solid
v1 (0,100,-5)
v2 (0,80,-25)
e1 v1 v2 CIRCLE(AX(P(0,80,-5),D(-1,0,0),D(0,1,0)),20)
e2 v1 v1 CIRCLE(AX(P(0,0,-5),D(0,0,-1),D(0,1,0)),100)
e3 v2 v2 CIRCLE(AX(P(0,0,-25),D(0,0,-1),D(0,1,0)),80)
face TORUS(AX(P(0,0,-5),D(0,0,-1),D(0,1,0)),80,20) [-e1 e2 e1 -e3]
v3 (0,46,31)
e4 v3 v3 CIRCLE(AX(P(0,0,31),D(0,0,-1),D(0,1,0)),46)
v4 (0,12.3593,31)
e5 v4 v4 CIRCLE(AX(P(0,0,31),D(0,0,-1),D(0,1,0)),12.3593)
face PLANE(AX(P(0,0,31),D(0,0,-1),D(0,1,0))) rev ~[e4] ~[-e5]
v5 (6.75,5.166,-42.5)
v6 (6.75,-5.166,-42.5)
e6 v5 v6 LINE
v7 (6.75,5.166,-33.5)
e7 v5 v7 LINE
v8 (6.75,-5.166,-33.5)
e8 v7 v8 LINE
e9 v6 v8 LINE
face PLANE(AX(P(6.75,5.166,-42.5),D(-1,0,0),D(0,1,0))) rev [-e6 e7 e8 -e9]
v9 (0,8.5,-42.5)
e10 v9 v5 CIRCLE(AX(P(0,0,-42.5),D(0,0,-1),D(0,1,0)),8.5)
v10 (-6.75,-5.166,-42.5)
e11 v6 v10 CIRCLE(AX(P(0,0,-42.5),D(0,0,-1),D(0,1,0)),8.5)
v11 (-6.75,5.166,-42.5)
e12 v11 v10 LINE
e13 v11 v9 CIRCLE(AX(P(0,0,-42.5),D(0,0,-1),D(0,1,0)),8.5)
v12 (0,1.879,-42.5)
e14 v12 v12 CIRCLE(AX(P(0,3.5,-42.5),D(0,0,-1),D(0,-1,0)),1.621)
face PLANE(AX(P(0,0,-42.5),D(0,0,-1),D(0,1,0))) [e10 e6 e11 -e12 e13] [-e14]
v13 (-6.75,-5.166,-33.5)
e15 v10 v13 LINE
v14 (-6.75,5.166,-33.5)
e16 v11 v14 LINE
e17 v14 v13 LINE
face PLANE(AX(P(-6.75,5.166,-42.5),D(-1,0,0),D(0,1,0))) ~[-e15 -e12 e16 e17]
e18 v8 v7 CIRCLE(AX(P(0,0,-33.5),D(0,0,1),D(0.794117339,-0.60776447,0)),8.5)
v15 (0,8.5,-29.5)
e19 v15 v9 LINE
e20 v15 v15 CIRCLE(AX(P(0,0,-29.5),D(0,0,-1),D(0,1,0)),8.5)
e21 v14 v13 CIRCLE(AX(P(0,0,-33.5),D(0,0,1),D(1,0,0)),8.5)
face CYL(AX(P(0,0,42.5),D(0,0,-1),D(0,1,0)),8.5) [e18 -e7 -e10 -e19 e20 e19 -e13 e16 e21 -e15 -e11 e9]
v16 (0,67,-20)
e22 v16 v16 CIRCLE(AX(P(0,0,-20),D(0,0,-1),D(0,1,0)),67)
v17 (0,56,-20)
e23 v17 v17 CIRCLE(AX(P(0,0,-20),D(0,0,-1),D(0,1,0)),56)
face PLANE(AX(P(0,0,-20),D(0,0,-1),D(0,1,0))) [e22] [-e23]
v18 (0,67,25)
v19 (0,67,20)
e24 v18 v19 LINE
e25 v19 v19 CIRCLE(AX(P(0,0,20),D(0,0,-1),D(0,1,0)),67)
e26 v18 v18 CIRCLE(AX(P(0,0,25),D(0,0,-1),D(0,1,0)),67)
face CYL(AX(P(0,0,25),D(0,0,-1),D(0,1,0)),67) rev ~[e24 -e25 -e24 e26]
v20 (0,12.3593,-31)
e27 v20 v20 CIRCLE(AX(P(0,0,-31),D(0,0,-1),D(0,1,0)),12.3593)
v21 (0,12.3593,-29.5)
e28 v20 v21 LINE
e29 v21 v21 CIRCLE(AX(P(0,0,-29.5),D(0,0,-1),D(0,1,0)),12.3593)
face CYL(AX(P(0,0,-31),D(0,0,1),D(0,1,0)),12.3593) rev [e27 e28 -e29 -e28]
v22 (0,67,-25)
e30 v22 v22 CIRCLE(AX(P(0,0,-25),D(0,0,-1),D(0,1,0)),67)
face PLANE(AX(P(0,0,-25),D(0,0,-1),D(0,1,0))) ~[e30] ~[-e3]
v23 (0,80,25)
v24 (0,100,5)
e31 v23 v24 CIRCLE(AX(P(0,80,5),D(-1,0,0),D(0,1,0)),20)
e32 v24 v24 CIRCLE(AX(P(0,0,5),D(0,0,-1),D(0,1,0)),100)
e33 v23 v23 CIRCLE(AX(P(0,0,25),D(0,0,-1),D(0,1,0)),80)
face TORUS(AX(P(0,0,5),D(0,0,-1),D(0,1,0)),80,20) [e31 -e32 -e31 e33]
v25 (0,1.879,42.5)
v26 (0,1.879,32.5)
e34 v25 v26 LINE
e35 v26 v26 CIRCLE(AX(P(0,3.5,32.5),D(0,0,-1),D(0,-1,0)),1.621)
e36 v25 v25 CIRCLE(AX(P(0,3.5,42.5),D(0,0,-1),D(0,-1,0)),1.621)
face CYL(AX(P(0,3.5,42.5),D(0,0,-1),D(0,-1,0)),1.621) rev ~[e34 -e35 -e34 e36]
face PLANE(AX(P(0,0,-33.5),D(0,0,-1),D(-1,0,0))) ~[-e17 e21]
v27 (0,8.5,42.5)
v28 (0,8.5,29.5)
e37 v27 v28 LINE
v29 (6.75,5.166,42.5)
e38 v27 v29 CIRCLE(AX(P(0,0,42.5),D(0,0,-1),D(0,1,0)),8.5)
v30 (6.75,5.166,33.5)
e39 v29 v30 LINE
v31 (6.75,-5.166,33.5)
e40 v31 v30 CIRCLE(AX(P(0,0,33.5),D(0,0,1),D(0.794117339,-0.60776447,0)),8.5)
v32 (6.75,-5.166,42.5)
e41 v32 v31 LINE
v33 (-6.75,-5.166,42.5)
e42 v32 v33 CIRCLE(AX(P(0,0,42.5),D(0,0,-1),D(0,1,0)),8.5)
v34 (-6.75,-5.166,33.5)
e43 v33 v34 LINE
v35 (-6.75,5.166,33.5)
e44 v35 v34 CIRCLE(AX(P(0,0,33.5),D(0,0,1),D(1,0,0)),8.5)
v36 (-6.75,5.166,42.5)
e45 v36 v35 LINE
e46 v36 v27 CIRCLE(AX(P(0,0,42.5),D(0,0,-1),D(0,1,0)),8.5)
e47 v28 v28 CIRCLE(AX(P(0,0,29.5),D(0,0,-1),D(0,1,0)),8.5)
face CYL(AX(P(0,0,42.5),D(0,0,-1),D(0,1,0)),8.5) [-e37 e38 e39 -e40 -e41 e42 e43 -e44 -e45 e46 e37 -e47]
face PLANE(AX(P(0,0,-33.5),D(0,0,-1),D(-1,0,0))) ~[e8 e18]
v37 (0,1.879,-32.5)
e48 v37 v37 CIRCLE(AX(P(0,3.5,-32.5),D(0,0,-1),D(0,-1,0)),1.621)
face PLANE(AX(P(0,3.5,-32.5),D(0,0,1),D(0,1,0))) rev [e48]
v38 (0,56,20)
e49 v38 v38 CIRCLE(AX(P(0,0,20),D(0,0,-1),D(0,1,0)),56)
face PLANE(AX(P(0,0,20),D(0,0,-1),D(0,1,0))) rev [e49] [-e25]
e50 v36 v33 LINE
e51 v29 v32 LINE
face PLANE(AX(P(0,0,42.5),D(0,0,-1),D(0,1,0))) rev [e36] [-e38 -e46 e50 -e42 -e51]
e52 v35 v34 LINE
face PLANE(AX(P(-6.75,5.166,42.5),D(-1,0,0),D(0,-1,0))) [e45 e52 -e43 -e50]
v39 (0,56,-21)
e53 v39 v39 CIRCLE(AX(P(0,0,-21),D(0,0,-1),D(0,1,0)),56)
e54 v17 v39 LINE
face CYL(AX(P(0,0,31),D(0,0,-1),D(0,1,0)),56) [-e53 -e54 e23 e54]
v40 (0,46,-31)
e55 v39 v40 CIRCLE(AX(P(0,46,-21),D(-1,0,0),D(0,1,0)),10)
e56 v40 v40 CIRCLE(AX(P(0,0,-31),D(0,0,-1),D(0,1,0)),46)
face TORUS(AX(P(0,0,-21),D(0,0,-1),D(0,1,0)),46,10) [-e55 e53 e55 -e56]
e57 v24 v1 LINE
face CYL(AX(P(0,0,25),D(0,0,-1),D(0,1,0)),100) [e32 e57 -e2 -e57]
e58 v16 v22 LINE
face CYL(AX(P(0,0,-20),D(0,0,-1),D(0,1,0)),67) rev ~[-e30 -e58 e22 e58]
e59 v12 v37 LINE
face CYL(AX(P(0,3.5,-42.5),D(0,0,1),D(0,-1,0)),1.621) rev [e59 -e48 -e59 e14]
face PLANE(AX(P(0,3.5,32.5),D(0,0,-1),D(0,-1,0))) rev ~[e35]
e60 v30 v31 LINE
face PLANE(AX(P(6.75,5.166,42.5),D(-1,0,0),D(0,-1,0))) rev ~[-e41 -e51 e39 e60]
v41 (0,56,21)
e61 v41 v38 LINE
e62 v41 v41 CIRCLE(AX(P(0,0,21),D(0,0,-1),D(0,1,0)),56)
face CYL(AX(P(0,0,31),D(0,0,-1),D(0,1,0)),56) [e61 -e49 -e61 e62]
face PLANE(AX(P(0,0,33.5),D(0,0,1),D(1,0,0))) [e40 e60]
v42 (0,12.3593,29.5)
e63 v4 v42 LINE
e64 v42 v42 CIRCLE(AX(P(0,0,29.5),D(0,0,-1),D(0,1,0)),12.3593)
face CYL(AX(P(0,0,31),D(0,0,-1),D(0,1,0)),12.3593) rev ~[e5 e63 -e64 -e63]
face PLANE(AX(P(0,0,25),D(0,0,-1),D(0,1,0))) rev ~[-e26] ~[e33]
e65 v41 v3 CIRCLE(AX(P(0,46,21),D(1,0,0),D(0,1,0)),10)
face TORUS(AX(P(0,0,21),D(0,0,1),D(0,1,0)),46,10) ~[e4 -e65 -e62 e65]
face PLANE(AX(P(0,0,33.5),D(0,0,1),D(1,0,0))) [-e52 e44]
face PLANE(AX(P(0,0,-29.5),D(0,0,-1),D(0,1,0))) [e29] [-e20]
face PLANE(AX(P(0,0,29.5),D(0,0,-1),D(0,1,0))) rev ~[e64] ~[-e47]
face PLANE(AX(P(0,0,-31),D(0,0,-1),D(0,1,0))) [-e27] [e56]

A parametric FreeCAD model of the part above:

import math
import FreeCAD as App
import Part
import Sketcher

V = App.Vector


def edges_at(feature, points):
    """Names of the edges that pass closest to the given points."""
    edges = feature.Shape.Edges
    near = lambda p: min(range(len(edges)), key=lambda i: edges[i].distToShape(Part.Vertex(*p))[0])
    return sorted({f"Edge{near(p) + 1}" for p in points})


def add_polygon(sketch, points):
    """Adds a closed chain of lines whose ends are joined by coincident constraints."""
    first, n = sketch.GeometryCount, len(points)
    for a, b in zip(points, points[1:] + points[:1]):
        sketch.addGeometry(Part.LineSegment(App.Vector(*a, 0), App.Vector(*b, 0)), False)
    for i in range(n):
        sketch.addConstraint(Sketcher.Constraint("Coincident", first + i, 2, first + (i + 1) % n, 1))

doc = App.newDocument("Part")
body = doc.addObject("PartDesign::Body", "Body")

# Sketch on YZ plane
sketch1 = doc.addObject("Sketcher::SketchObject", "Sketch")
body.addObject(sketch1)
sketch1.AttachmentSupport = (doc.YZ_Plane, [""])
sketch1.MapMode = "FlatFace"
add_polygon(sketch1, [(8.5, 42.5), (0, 42.5), (0, -42.5), (8.5, -42.5), (8.5, -29.5), (12.3593, -29.5), (12.3593, -31), (56, -31), (56, -20), (67, -20), (67, -25), (100, -25), (100, 25), (67, 25), (67, 20), (56, 20), (56, 31), (12.3593, 31), (12.3593, 29.5), (8.5, 29.5)])  # lines 0-19
sketch1.addConstraint(Sketcher.Constraint("Horizontal", 0))
sketch1.addConstraint(Sketcher.Constraint("Vertical", 1))
sketch1.addConstraint(Sketcher.Constraint("Horizontal", 2))
sketch1.addConstraint(Sketcher.Constraint("Vertical", 3))
sketch1.addConstraint(Sketcher.Constraint("Horizontal", 4))
sketch1.addConstraint(Sketcher.Constraint("Vertical", 5))
sketch1.addConstraint(Sketcher.Constraint("Horizontal", 6))
sketch1.addConstraint(Sketcher.Constraint("Vertical", 7))
sketch1.addConstraint(Sketcher.Constraint("Horizontal", 8))
sketch1.addConstraint(Sketcher.Constraint("Vertical", 9))
sketch1.addConstraint(Sketcher.Constraint("Horizontal", 10))
sketch1.addConstraint(Sketcher.Constraint("Vertical", 11))
sketch1.addConstraint(Sketcher.Constraint("Horizontal", 12))
sketch1.addConstraint(Sketcher.Constraint("Vertical", 13))
sketch1.addConstraint(Sketcher.Constraint("Horizontal", 14))
sketch1.addConstraint(Sketcher.Constraint("Vertical", 15))
sketch1.addConstraint(Sketcher.Constraint("Horizontal", 16))
sketch1.addConstraint(Sketcher.Constraint("Vertical", 17))
sketch1.addConstraint(Sketcher.Constraint("Horizontal", 18))
sketch1.addConstraint(Sketcher.Constraint("Vertical", 19))
sketch1.addConstraint(Sketcher.Constraint("Symmetric", 0, 2, 1, 2, -1, 1))
sketch1.addConstraint(Sketcher.Constraint("Symmetric", 9, 2, 12, 2, -1))
sketch1.addConstraint(Sketcher.Constraint("Symmetric", 7, 2, 14, 2, -1))
sketch1.addConstraint(Sketcher.Constraint("Symmetric", 5, 2, 16, 2, -1))
sketch1.addConstraint(Sketcher.Constraint("Symmetric", 3, 2, 18, 2, -1))
sketch1.addConstraint(Sketcher.Constraint("Equal", 14, 7))
sketch1.addConstraint(Sketcher.Constraint("DistanceX", 8, 1, 8, 2, 11.0))
sketch1.addConstraint(Sketcher.Constraint("DistanceY", 1, 2, 1, 1, 85.0))
sketch1.addConstraint(Sketcher.Constraint("DistanceY", 3, 1, 3, 2, 13.0))
sketch1.addConstraint(Sketcher.Constraint("DistanceY", 11, 1, 11, 2, 50.0))
sketch1.addConstraint(Sketcher.Constraint("DistanceX", 0, 2, 0, 1, 8.5))
sketch1.addConstraint(Sketcher.Constraint("DistanceY", 5, 2, 5, 1, 1.5))
sketch1.addConstraint(Sketcher.Constraint("DistanceX", -1, 1, 6, 2, 56.0))
sketch1.addConstraint(Sketcher.Constraint("DistanceX", -1, 1, 10, 2, 100.0))
sketch1.addConstraint(Sketcher.Constraint("DistanceX", 4, 1, 4, 2, 3.8593))
revolution = doc.addObject("PartDesign::Revolution", "Revolution")
body.addObject(revolution)
revolution.Profile = sketch1
revolution.ReferenceAxis = (sketch1, ["V_Axis"])
revolution.Angle = 360
doc.recompute()

fillet = doc.addObject("PartDesign::Fillet", "Fillet")
body.addObject(fillet)
fillet.Base = (revolution, edges_at(revolution, [(0, -100, 25), (0, -100, -25)]))
fillet.Radius = 20
doc.recompute()

fillet2 = doc.addObject("PartDesign::Fillet", "Fillet001")
body.addObject(fillet2)
fillet2.Base = (fillet, edges_at(fillet, [(0, -56, 31), (0, -56, -31)]))
fillet2.Radius = 10

# Sketch on XY plane
sketch2 = doc.addObject("Sketcher::SketchObject", "Sketch001")
body.addObject(sketch2)
sketch2.AttachmentSupport = (doc.XY_Plane, [""])
sketch2.MapMode = "FlatFace"
sketch2.AttachmentOffset = App.Placement(V(0, 0, 42.5), App.Rotation())
sketch2.addGeometry(Part.ArcOfCircle(Part.Circle(V(0, 0, 0), V(0, 0, 1), 8.5), math.radians(-37.428035), math.radians(37.428035)), False)
sketch2.addGeometry(Part.LineSegment(V(6.75, -5.166, 0), V(6.75, 5.166, 0)), False)
sketch2.addGeometry(Part.LineSegment(V(-6.75, -5.166, 0), V(-6.75, 5.166, 0)), False)
sketch2.addGeometry(Part.ArcOfCircle(Part.Circle(V(0, 0, 0), V(0, 0, 1), 8.5), math.radians(142.571965), math.radians(217.428035)), False)
sketch2.addConstraint(Sketcher.Constraint("Coincident", 0, 1, 1, 1))
sketch2.addConstraint(Sketcher.Constraint("Coincident", 1, 2, 0, 2))
sketch2.addConstraint(Sketcher.Constraint("Coincident", 2, 1, 3, 2))
sketch2.addConstraint(Sketcher.Constraint("Coincident", 3, 1, 2, 2))
sketch2.addConstraint(Sketcher.Constraint("Vertical", 1))
sketch2.addConstraint(Sketcher.Constraint("Vertical", 2))
sketch2.addConstraint(Sketcher.Constraint("Coincident", 0, 3, -1, 1))
sketch2.addConstraint(Sketcher.Constraint("Coincident", 3, 3, -1, 1))
sketch2.addConstraint(Sketcher.Constraint("Equal", 0, 3))
sketch2.addConstraint(Sketcher.Constraint("Horizontal", 0, 1, 2, 1))
sketch2.addConstraint(Sketcher.Constraint("Radius", 0, 8.5))
sketch2.addConstraint(Sketcher.Constraint("DistanceX", 2, 1, 0, 1, 13.5))
pocket1 = doc.addObject("PartDesign::Pocket", "Pocket")
body.addObject(pocket1)
pocket1.Profile = sketch2
pocket1.Length = 9

# Sketch on XY plane
sketch3 = doc.addObject("Sketcher::SketchObject", "Sketch002")
body.addObject(sketch3)
sketch3.AttachmentSupport = (doc.XY_Plane, [""])
sketch3.MapMode = "FlatFace"
sketch3.AttachmentOffset = App.Placement(V(0, 0, 42.5), App.Rotation())
sketch3.addGeometry(Part.Circle(V(0, 3.5, 0), V(0, 0, 1), 1.621), False)
sketch3.addConstraint(Sketcher.Constraint("PointOnObject", 0, 3, -2))
sketch3.addConstraint(Sketcher.Constraint("Diameter", 0, 3.242))
sketch3.addConstraint(Sketcher.Constraint("DistanceY", -1, 1, 0, 3, 3.5))
doc.recompute()
hole = doc.addObject("PartDesign::Hole", "Hole")
body.addObject(hole)
hole.Profile = sketch3
hole.ThreadType = "None"
hole.Diameter = 3.242
hole.DepthType = "Dimension"
hole.Depth = 10
hole.DrillPoint = "Flat"
doc.recompute()

mirrored = doc.addObject("PartDesign::Mirrored", "Mirrored")
body.addObject(mirrored)
mirrored.Originals = [pocket1, hole]
mirrored.MirrorPlane = (doc.XY_Plane, [""])
body.Tip = mirrored

doc.recompute()
